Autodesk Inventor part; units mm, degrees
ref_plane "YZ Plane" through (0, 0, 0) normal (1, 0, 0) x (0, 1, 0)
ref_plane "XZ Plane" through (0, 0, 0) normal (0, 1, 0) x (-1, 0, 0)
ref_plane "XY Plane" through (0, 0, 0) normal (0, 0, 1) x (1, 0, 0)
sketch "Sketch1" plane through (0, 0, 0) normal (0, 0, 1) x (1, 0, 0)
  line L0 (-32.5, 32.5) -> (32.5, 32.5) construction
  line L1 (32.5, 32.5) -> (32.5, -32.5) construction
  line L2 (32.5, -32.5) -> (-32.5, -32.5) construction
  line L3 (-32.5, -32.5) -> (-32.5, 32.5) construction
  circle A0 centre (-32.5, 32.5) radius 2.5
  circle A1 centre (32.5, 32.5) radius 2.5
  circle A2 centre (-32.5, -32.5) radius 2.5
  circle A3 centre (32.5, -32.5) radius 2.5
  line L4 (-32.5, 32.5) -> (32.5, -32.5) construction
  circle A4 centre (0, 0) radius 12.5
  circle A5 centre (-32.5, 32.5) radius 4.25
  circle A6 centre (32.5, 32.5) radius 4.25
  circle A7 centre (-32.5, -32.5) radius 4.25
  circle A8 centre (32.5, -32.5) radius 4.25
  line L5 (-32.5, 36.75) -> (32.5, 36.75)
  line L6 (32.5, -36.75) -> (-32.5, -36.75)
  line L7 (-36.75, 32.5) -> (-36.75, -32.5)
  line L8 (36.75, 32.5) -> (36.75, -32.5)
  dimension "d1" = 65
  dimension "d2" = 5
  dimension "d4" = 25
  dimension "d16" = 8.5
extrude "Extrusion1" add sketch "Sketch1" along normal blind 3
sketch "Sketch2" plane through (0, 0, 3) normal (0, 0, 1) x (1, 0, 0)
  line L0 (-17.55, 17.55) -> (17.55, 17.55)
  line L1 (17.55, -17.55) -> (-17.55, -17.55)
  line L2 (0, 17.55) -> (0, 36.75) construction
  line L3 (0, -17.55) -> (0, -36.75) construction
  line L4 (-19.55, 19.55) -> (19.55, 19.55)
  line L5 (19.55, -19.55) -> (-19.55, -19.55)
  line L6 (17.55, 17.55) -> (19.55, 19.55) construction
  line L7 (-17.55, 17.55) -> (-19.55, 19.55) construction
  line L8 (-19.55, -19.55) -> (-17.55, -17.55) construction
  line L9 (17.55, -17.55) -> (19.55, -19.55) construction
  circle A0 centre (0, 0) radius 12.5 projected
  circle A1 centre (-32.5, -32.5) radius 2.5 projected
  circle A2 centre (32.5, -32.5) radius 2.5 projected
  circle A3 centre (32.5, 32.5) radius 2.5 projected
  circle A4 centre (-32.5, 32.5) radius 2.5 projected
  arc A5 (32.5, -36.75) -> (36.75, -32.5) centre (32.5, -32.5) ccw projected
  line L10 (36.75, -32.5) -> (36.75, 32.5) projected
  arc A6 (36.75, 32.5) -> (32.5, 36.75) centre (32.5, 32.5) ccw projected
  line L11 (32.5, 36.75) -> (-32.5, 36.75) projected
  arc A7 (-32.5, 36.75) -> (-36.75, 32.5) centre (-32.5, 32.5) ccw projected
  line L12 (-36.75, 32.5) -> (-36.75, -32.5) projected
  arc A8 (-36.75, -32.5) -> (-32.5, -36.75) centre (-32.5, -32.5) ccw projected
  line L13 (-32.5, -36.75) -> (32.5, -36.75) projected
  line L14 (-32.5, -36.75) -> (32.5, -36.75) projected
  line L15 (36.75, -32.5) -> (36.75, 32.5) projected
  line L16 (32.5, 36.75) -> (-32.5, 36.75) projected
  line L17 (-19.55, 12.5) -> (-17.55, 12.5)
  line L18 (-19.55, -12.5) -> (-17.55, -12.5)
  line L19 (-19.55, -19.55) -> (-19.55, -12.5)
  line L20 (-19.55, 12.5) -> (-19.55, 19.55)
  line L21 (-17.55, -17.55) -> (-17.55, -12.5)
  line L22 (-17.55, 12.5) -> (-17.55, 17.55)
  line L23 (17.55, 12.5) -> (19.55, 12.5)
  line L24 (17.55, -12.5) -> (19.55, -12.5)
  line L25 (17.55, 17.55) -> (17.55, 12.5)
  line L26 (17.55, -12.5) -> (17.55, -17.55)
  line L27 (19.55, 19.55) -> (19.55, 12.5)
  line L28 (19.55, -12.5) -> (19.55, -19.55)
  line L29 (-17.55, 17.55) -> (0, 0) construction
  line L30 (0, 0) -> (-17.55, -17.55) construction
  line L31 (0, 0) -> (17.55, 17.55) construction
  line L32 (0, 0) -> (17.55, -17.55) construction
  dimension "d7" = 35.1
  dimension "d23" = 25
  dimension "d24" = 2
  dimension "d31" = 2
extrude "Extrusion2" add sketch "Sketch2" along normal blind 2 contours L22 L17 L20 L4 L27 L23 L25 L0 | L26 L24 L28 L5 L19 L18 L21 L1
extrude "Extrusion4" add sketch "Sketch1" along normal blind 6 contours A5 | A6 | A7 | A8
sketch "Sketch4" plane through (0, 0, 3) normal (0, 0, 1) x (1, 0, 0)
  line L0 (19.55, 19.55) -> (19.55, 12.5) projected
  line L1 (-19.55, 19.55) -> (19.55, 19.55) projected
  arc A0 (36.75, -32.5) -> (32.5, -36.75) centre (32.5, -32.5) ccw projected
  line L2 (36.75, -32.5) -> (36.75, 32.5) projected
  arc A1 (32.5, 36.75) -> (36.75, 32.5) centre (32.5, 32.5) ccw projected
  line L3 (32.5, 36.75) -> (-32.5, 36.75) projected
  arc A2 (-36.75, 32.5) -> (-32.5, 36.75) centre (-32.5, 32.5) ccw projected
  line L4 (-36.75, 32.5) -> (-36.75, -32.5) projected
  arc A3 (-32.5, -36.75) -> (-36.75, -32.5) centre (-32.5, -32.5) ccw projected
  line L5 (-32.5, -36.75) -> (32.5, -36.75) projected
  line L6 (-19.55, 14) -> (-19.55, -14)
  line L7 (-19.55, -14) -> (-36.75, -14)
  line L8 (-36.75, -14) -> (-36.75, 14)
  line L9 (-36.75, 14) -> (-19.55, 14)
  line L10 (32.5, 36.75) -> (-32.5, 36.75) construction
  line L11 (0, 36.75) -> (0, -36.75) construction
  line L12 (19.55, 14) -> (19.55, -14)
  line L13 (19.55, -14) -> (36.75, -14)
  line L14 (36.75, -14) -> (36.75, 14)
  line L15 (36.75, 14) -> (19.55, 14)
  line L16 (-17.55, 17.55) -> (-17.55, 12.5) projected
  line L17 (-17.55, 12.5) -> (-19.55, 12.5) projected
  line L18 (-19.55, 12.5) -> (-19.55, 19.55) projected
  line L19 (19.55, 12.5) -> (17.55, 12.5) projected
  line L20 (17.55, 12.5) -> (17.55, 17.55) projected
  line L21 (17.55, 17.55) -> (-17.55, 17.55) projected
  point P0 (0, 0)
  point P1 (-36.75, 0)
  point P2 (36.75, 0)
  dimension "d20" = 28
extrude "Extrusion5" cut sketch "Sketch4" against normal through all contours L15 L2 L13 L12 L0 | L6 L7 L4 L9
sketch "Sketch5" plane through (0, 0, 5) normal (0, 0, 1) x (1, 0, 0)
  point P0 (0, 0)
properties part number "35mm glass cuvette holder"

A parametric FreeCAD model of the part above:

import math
import FreeCAD as App
import Part
import Sketcher
Q = App.Units.Quantity


def add_polygon(sketch, points):
    """Adds a closed chain of lines whose ends are joined by coincident constraints."""
    first, n = sketch.GeometryCount, len(points)
    for a, b in zip(points, points[1:] + points[:1]):
        sketch.addGeometry(Part.LineSegment(App.Vector(*a, 0), App.Vector(*b, 0)), False)
    for i in range(n):
        sketch.addConstraint(Sketcher.Constraint("Coincident", first + i, 2, first + (i + 1) % n, 1))

doc = App.newDocument("Part")
params = doc.addObject("Spreadsheet::Sheet", "Params")
for row, (alias, value) in enumerate([
    ("sketch1_diameter", "5 mm"),
    ("sketch1_diameter2", "25 mm"),
    ("sketch1_width", "65 mm"),
    ("sketch1_radius", "4.25 mm"),
    ("pad1_length", "3 mm"),
    ("sketch2_width", "2 mm"),
    ("sketch2_width2", "35.1 mm"),
    ("pad2_length", "2 mm"),
    ("sketch3_diameter", "5 mm"),
    ("sketch3_diameter2", "8.5 mm"),
    ("pad3_length", "6 mm"),
    ("sketch4_height", "28 mm"),
    ("sketch4_width", "17.2 mm"),
], start=1):
    params.set(f"A{row}", alias)
    params.set(f"B{row}", "=" + value)
    params.setAlias(f"B{row}", alias)

body = doc.addObject("PartDesign::Body", "Body")

# Sketch on XY plane
sketch1 = body.newObject("Sketcher::SketchObject", "Sketch")
sketch1.AttachmentSupport = (doc.getObject("XY_Plane"), [""])
sketch1.MapMode = "FlatFace"
sketch1.addGeometry([
    Part.ArcOfCircle(Part.Circle(App.Vector(-32.5, 32.5, 0), App.Vector(0, 0, 1), 4.2), math.radians(90), math.radians(180)),  # 0
    Part.LineSegment(App.Vector(-36.8, 32.5, 0), App.Vector(-36.8, -32.5, 0)),  # 1
    Part.ArcOfCircle(Part.Circle(App.Vector(-32.5, -32.5, 0), App.Vector(0, 0, 1), 4.2), math.radians(180), math.radians(270)),  # 2
    Part.LineSegment(App.Vector(-32.5, -36.8, 0), App.Vector(32.5, -36.8, 0)),  # 3
    Part.ArcOfCircle(Part.Circle(App.Vector(32.5, -32.5, 0), App.Vector(0, 0, 1), 4.2), math.radians(-90), math.radians(0)),  # 4
    Part.LineSegment(App.Vector(36.8, -32.5, 0), App.Vector(36.8, 32.5, 0)),  # 5
    Part.ArcOfCircle(Part.Circle(App.Vector(32.5, 32.5, 0), App.Vector(0, 0, 1), 4.2), math.radians(0), math.radians(90)),  # 6
    Part.LineSegment(App.Vector(32.5, 36.8, 0), App.Vector(-32.5, 36.8, 0)),  # 7
    Part.Circle(App.Vector(-32.5, 32.5, 0), App.Vector(0, 0, 1), 2.5),  # 8
    Part.Circle(App.Vector(0, 0, 0), App.Vector(0, 0, 1), 12.5),  # 9
    Part.Circle(App.Vector(32.5, 32.5, 0), App.Vector(0, 0, 1), 2.5),  # 10
    Part.Circle(App.Vector(32.5, -32.5, 0), App.Vector(0, 0, 1), 2.5),  # 11
    Part.Circle(App.Vector(-32.5, -32.5, 0), App.Vector(0, 0, 1), 2.5),  # 12
], False)
sketch1.addConstraint([
    Sketcher.Constraint("Tangent", 0, 2, 1, 1),
    Sketcher.Constraint("Tangent", 1, 2, 2, 1),
    Sketcher.Constraint("Tangent", 2, 2, 3, 1),
    Sketcher.Constraint("Tangent", 3, 2, 4, 1),
    Sketcher.Constraint("Tangent", 4, 2, 5, 1),
    Sketcher.Constraint("Tangent", 5, 2, 6, 1),
    Sketcher.Constraint("Tangent", 6, 2, 7, 1),
    Sketcher.Constraint("Tangent", 7, 2, 0, 1),
    Sketcher.Constraint("Vertical", 1),
    Sketcher.Constraint("Horizontal", 3),
    Sketcher.Constraint("Vertical", 5),
    Sketcher.Constraint("Horizontal", 7),
    Sketcher.Constraint("Coincident", 9, 3, -1, 1),
    Sketcher.Constraint("Coincident", 8, 3, 0, 3),
    Sketcher.Constraint("Coincident", 10, 3, 6, 3),
    Sketcher.Constraint("Coincident", 11, 3, 4, 3),
    Sketcher.Constraint("Coincident", 12, 3, 2, 3),
    Sketcher.Constraint("Equal", 0, 2),
    Sketcher.Constraint("Equal", 2, 4),
    Sketcher.Constraint("Equal", 4, 6),
    Sketcher.Constraint("Equal", 8, 10),
    Sketcher.Constraint("Equal", 10, 11),
    Sketcher.Constraint("Equal", 11, 12),
    Sketcher.Constraint("Symmetric", 0, 3, 4, 3, -1, 1),
    Sketcher.Constraint("Equal", 7, 1),
    Sketcher.Constraint("Diameter", 8, Q("5 mm")),
    Sketcher.Constraint("Diameter", 9, Q("25 mm")),
    Sketcher.Constraint("DistanceX", 3, 1, 3, 2, Q("65 mm")),
    Sketcher.Constraint("Radius", 0, Q("4.25 mm")),
])
sketch1.setExpression("Constraints[25]", "Params.sketch1_diameter")
sketch1.setExpression("Constraints[26]", "Params.sketch1_diameter2")
sketch1.setExpression("Constraints[27]", "Params.sketch1_width")
sketch1.setExpression("Constraints[28]", "Params.sketch1_radius")
pad1 = body.newObject("PartDesign::Pad", "Pad")
pad1.Profile = sketch1
pad1.setExpression("Length", "Params.pad1_length")

# Sketch on XY plane
sketch2 = body.newObject("Sketcher::SketchObject", "Sketch001")
sketch2.AttachmentSupport = (doc.getObject("XY_Plane"), [""])
sketch2.MapMode = "FlatFace"
sketch2.AttachmentOffset = App.Placement(App.Vector(0, 0, 3), App.Rotation())
add_polygon(sketch2, [(-17.6, 12.5), (-17.6, 17.6), (17.6, 17.6), (17.6, 12.5), (19.6, 12.5), (19.6, 19.6), (-19.6, 19.6), (-19.6, 12.5)])  # lines 0-7
add_polygon(sketch2, [(17.6, -12.5), (17.6, -17.6), (-17.6, -17.6), (-17.6, -12.5), (-19.6, -12.5), (-19.6, -19.6), (19.6, -19.6), (19.6, -12.5)])  # lines 8-15
sketch2.addConstraint([
    Sketcher.Constraint("Vertical", 0),
    Sketcher.Constraint("Horizontal", 1),
    Sketcher.Constraint("Vertical", 2),
    Sketcher.Constraint("Horizontal", 3),
    Sketcher.Constraint("Vertical", 4),
    Sketcher.Constraint("Horizontal", 5),
    Sketcher.Constraint("Vertical", 6),
    Sketcher.Constraint("Horizontal", 7),
    Sketcher.Constraint("Vertical", 8),
    Sketcher.Constraint("Horizontal", 9),
    Sketcher.Constraint("Vertical", 10),
    Sketcher.Constraint("Horizontal", 11),
    Sketcher.Constraint("Vertical", 12),
    Sketcher.Constraint("Horizontal", 13),
    Sketcher.Constraint("Vertical", 14),
    Sketcher.Constraint("Horizontal", 15),
    Sketcher.Constraint("Symmetric", 0, 2, 8, 2, -1, 1),
    Sketcher.Constraint("Symmetric", 2, 2, 10, 2, -1, 1),
    Sketcher.Constraint("Symmetric", 4, 2, 12, 2, -1, 1),
    Sketcher.Constraint("Symmetric", 6, 2, 14, 2, -1, 1),
    Sketcher.Constraint("Symmetric", 3, 2, 6, 2, -2),
    Sketcher.Constraint("Vertical", 2, 2, 8, 2),
    Sketcher.Constraint("DistanceX", 3, 1, 3, 2, Q("2 mm")),
    Sketcher.Constraint("DistanceX", 1, 1, 1, 2, Q("35.1 mm")),
    Sketcher.Constraint("DistanceY", 1, 2, 4, 2, Q("2 mm")),
    Sketcher.Constraint("DistanceY", 10, 2, 7, 2, Q("25 mm")),
    Sketcher.Constraint("DistanceY", 8, 2, 1, 2, Q("35.1 mm")),
])
sketch2.setExpression("Constraints[38]", "Params.sketch2_width")
sketch2.setExpression("Constraints[39]", "Params.sketch2_width2")
pad2 = body.newObject("PartDesign::Pad", "Pad001")
pad2.Profile = sketch2
pad2.setExpression("Length", "Params.pad2_length")

# Sketch on XY plane
sketch3 = body.newObject("Sketcher::SketchObject", "Sketch002")
sketch3.AttachmentSupport = (doc.getObject("XY_Plane"), [""])
sketch3.MapMode = "FlatFace"
sketch3.addGeometry([
    Part.Circle(App.Vector(-32.5, 32.5, 0), App.Vector(0, 0, 1), 4.2),  # 0
    Part.Circle(App.Vector(-32.5, 32.5, 0), App.Vector(0, 0, 1), 2.5),  # 1
    Part.Circle(App.Vector(32.5, 32.5, 0), App.Vector(0, 0, 1), 4.2),  # 2
    Part.Circle(App.Vector(32.5, 32.5, 0), App.Vector(0, 0, 1), 2.5),  # 3
    Part.Circle(App.Vector(-32.5, -32.5, 0), App.Vector(0, 0, 1), 4.2),  # 4
    Part.Circle(App.Vector(-32.5, -32.5, 0), App.Vector(0, 0, 1), 2.5),  # 5
    Part.Circle(App.Vector(32.5, -32.5, 0), App.Vector(0, 0, 1), 4.2),  # 6
    Part.Circle(App.Vector(32.5, -32.5, 0), App.Vector(0, 0, 1), 2.5),  # 7
], False)
sketch3.addConstraint([
    Sketcher.Constraint("Coincident", 1, 3, 0, 3),
    Sketcher.Constraint("Coincident", 3, 3, 2, 3),
    Sketcher.Constraint("Coincident", 5, 3, 4, 3),
    Sketcher.Constraint("Coincident", 7, 3, 6, 3),
    Sketcher.Constraint("Equal", 0, 2),
    Sketcher.Constraint("Equal", 1, 3),
    Sketcher.Constraint("Equal", 2, 4),
    Sketcher.Constraint("Equal", 3, 5),
    Sketcher.Constraint("Equal", 4, 6),
    Sketcher.Constraint("Equal", 5, 7),
    Sketcher.Constraint("Symmetric", 2, 3, 4, 3, -1, 1),
    Sketcher.Constraint("Symmetric", 0, 3, 6, 3, -1, 1),
    Sketcher.Constraint("Symmetric", 0, 3, 2, 3, -2),
    Sketcher.Constraint("Diameter", 1, Q("5 mm")),
    Sketcher.Constraint("Diameter", 0, Q("8.5 mm")),
    Sketcher.Constraint("DistanceX", 0, 3, 2, 3, Q("65 mm")),
    Sketcher.Constraint("DistanceY", 4, 3, 0, 3, Q("65 mm")),
])
sketch3.setExpression("Constraints[13]", "Params.sketch3_diameter")
sketch3.setExpression("Constraints[14]", "Params.sketch3_diameter2")
pad3 = body.newObject("PartDesign::Pad", "Pad002")
pad3.Profile = sketch3
pad3.setExpression("Length", "Params.pad3_length")

# Sketch on XY plane
sketch4 = body.newObject("Sketcher::SketchObject", "Sketch003")
sketch4.AttachmentSupport = (doc.getObject("XY_Plane"), [""])
sketch4.MapMode = "FlatFace"
sketch4.AttachmentOffset = App.Placement(App.Vector(0, 0, 3), App.Rotation())
add_polygon(sketch4, [(37, 14), (20, 14), (20, -14), (37, -14)])  # lines 0-3
add_polygon(sketch4, [(-20, -14), (-20, 14), (-37, 14), (-37, -14)])  # lines 4-7
sketch4.addConstraint([
    Sketcher.Constraint("Horizontal", 0),
    Sketcher.Constraint("Vertical", 1),
    Sketcher.Constraint("Horizontal", 2),
    Sketcher.Constraint("Vertical", 3),
    Sketcher.Constraint("Vertical", 4),
    Sketcher.Constraint("Horizontal", 5),
    Sketcher.Constraint("Vertical", 6),
    Sketcher.Constraint("Horizontal", 7),
    Sketcher.Constraint("Symmetric", 1, 2, 4, 2, -1, 1),
    Sketcher.Constraint("Symmetric", 3, 2, 6, 2, -1, 1),
    Sketcher.Constraint("Horizontal", 3, 2, 4, 2),
    Sketcher.Constraint("DistanceY", 1, 2, 1, 1, Q("28 mm")),
    Sketcher.Constraint("DistanceX", 0, 2, 0, 1, Q("17.2 mm")),
    Sketcher.Constraint("DistanceX", 4, 2, 0, 2, Q("39.1 mm")),
])
sketch4.setExpression("Constraints[19]", "Params.sketch4_height")
sketch4.setExpression("Constraints[20]", "Params.sketch4_width")
pocket1 = body.newObject("PartDesign::Pocket", "Pocket")
pocket1.Profile = sketch4
pocket1.Type = "ThroughAll"

doc.recompute()
